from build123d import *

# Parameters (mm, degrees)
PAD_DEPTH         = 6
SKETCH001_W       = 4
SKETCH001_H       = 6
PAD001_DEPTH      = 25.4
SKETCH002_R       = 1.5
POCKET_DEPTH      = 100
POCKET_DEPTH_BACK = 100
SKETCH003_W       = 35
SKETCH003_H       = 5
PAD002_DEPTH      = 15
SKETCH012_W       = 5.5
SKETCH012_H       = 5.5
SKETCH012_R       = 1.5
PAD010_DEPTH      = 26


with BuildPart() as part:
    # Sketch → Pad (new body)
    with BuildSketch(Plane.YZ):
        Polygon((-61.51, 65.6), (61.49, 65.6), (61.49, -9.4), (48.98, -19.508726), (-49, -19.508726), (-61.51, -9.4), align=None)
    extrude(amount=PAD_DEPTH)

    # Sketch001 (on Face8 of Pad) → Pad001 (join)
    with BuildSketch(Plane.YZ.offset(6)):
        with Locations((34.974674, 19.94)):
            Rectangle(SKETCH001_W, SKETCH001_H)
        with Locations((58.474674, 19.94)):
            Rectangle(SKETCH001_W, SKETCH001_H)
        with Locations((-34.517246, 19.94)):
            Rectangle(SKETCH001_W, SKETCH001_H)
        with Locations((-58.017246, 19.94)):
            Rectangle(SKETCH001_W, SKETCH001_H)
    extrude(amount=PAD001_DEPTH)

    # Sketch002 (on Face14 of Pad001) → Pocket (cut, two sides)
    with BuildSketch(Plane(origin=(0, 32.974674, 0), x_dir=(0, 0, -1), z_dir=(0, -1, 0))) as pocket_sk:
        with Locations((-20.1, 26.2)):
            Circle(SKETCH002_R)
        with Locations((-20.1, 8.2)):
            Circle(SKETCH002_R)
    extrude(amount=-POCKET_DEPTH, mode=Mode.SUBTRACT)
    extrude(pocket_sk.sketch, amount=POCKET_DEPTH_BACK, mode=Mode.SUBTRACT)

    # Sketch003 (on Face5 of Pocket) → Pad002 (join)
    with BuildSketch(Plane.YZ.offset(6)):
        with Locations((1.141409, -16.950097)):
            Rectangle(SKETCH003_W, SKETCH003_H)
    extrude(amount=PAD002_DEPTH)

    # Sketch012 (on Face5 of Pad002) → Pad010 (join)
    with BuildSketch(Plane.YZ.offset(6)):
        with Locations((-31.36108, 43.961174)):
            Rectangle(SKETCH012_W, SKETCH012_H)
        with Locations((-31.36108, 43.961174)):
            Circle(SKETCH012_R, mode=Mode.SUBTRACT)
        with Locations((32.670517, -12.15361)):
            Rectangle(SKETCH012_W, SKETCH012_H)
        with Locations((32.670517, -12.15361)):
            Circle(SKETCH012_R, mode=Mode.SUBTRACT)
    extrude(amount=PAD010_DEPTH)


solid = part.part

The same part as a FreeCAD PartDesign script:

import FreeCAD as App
import Part
import Sketcher
Q = App.Units.Quantity

doc = App.newDocument("Part")
body = doc.addObject("PartDesign::Body", "Body")

# Sketch on YZ plane
sketch1 = doc.addObject("Sketcher::SketchObject", "Sketch")
body.addObject(sketch1)
sketch1.AttachmentSupport = (doc.YZ_Plane, [""])
sketch1.MapMode = "FlatFace"
sketch1.addGeometry(Part.LineSegment(App.Vector(61, 66, 0), App.Vector(-62, 66, 0)), False)
sketch1.addGeometry(Part.LineSegment(App.Vector(-62, 66, 0), App.Vector(-62, -9, 0)), False)
sketch1.addGeometry(Part.LineSegment(App.Vector(-62, -9, 0), App.Vector(-49, -20, 0)), False)
sketch1.addGeometry(Part.LineSegment(App.Vector(-49, -20, 0), App.Vector(49, -20, 0)), False)
sketch1.addGeometry(Part.LineSegment(App.Vector(49, -20, 0), App.Vector(61, -9, 0)), False)
sketch1.addGeometry(Part.LineSegment(App.Vector(61, -9, 0), App.Vector(61, 66, 0)), False)
sketch1.addConstraint(Sketcher.Constraint("Coincident", 0, 2, 1, 1))
sketch1.addConstraint(Sketcher.Constraint("Coincident", 1, 2, 2, 1))
sketch1.addConstraint(Sketcher.Constraint("Coincident", 2, 2, 3, 1))
sketch1.addConstraint(Sketcher.Constraint("Coincident", 3, 2, 4, 1))
sketch1.addConstraint(Sketcher.Constraint("Coincident", 4, 2, 5, 1))
sketch1.addConstraint(Sketcher.Constraint("Coincident", 5, 2, 0, 1))
sketch1.addConstraint(Sketcher.Constraint("Horizontal", 0))
sketch1.addConstraint(Sketcher.Constraint("Vertical", 1))
sketch1.addConstraint(Sketcher.Constraint("Horizontal", 3))
sketch1.addConstraint(Sketcher.Constraint("Vertical", 5))
sketch1.addConstraint(Sketcher.Constraint("Horizontal", 1, 2, 4, 2))
sketch1.addConstraint(Sketcher.Constraint("Equal", 2, 4))
sketch1.addConstraint(Sketcher.Constraint("DistanceX", 0, 2, 0, 1, Q("123 mm")))
sketch1.addConstraint(Sketcher.Constraint("DistanceY", 1, 2, 1, 1, Q("75 mm")))
sketch1.addConstraint(Sketcher.Constraint("DistanceX", 2, 2, -1, 1, Q("49 mm")))
sketch1.addConstraint(Sketcher.Constraint("DistanceX", 3, 1, 3, 2, Q("97.98 mm")))
sketch1.addConstraint(Sketcher.Constraint("DistanceY", -1, 1, 0, 2, Q("65.6 mm")))
sketch1.addConstraint(Sketcher.Constraint("Angle", 2, Q("-38.940001 deg")))
pad1 = doc.addObject("PartDesign::Pad", "Pad")
body.addObject(pad1)
pad1.Profile = sketch1
pad1.Length = 6

# Sketch on YZ plane
sketch2 = doc.addObject("Sketcher::SketchObject", "Sketch001")
body.addObject(sketch2)
sketch2.AttachmentSupport = (doc.YZ_Plane, [""])
sketch2.MapMode = "FlatFace"
sketch2.AttachmentOffset = App.Placement(App.Vector(0, 0, 6), App.Rotation())
sketch2.addGeometry(Part.LineSegment(App.Vector(33, 22.9, 0), App.Vector(33, 16.9, 0)), False)
sketch2.addGeometry(Part.LineSegment(App.Vector(33, 16.9, 0), App.Vector(37, 16.9, 0)), False)
sketch2.addGeometry(Part.LineSegment(App.Vector(37, 16.9, 0), App.Vector(37, 22.9, 0)), False)
sketch2.addGeometry(Part.LineSegment(App.Vector(37, 22.9, 0), App.Vector(33, 22.9, 0)), False)
sketch2.addGeometry(Part.LineSegment(App.Vector(56.5, 22.9, 0), App.Vector(56.5, 16.9, 0)), False)
sketch2.addGeometry(Part.LineSegment(App.Vector(56.5, 16.9, 0), App.Vector(60.5, 16.9, 0)), False)
sketch2.addGeometry(Part.LineSegment(App.Vector(60.5, 16.9, 0), App.Vector(60.5, 22.9, 0)), False)
sketch2.addGeometry(Part.LineSegment(App.Vector(60.5, 22.9, 0), App.Vector(56.5, 22.9, 0)), False)
sketch2.addGeometry(Part.LineSegment(App.Vector(-36.5, 22.9, 0), App.Vector(-36.5, 16.9, 0)), False)
sketch2.addGeometry(Part.LineSegment(App.Vector(-36.5, 16.9, 0), App.Vector(-32.5, 16.9, 0)), False)
sketch2.addGeometry(Part.LineSegment(App.Vector(-32.5, 16.9, 0), App.Vector(-32.5, 22.9, 0)), False)
sketch2.addGeometry(Part.LineSegment(App.Vector(-32.5, 22.9, 0), App.Vector(-36.5, 22.9, 0)), False)
sketch2.addGeometry(Part.LineSegment(App.Vector(-60, 22.9, 0), App.Vector(-60, 16.9, 0)), False)
sketch2.addGeometry(Part.LineSegment(App.Vector(-60, 16.9, 0), App.Vector(-56, 16.9, 0)), False)
sketch2.addGeometry(Part.LineSegment(App.Vector(-56, 16.9, 0), App.Vector(-56, 22.9, 0)), False)
sketch2.addGeometry(Part.LineSegment(App.Vector(-56, 22.9, 0), App.Vector(-60, 22.9, 0)), False)
sketch2.addConstraint(Sketcher.Constraint("Coincident", 0, 2, 1, 1))
sketch2.addConstraint(Sketcher.Constraint("Coincident", 1, 2, 2, 1))
sketch2.addConstraint(Sketcher.Constraint("Coincident", 2, 2, 3, 1))
sketch2.addConstraint(Sketcher.Constraint("Coincident", 3, 2, 0, 1))
sketch2.addConstraint(Sketcher.Constraint("Coincident", 4, 2, 5, 1))
sketch2.addConstraint(Sketcher.Constraint("Coincident", 5, 2, 6, 1))
sketch2.addConstraint(Sketcher.Constraint("Coincident", 6, 2, 7, 1))
sketch2.addConstraint(Sketcher.Constraint("Coincident", 7, 2, 4, 1))
sketch2.addConstraint(Sketcher.Constraint("Coincident", 8, 2, 9, 1))
sketch2.addConstraint(Sketcher.Constraint("Coincident", 9, 2, 10, 1))
sketch2.addConstraint(Sketcher.Constraint("Coincident", 10, 2, 11, 1))
sketch2.addConstraint(Sketcher.Constraint("Coincident", 11, 2, 8, 1))
sketch2.addConstraint(Sketcher.Constraint("Coincident", 12, 2, 13, 1))
sketch2.addConstraint(Sketcher.Constraint("Coincident", 13, 2, 14, 1))
sketch2.addConstraint(Sketcher.Constraint("Coincident", 14, 2, 15, 1))
sketch2.addConstraint(Sketcher.Constraint("Coincident", 15, 2, 12, 1))
sketch2.addConstraint(Sketcher.Constraint("Vertical", 0))
sketch2.addConstraint(Sketcher.Constraint("Horizontal", 1))
sketch2.addConstraint(Sketcher.Constraint("Vertical", 2))
sketch2.addConstraint(Sketcher.Constraint("Horizontal", 3))
sketch2.addConstraint(Sketcher.Constraint("Vertical", 4))
sketch2.addConstraint(Sketcher.Constraint("Horizontal", 5))
sketch2.addConstraint(Sketcher.Constraint("Vertical", 6))
sketch2.addConstraint(Sketcher.Constraint("Horizontal", 7))
sketch2.addConstraint(Sketcher.Constraint("Vertical", 8))
sketch2.addConstraint(Sketcher.Constraint("Horizontal", 9))
sketch2.addConstraint(Sketcher.Constraint("Vertical", 10))
sketch2.addConstraint(Sketcher.Constraint("Horizontal", 11))
sketch2.addConstraint(Sketcher.Constraint("Vertical", 12))
sketch2.addConstraint(Sketcher.Constraint("Horizontal", 13))
sketch2.addConstraint(Sketcher.Constraint("Vertical", 14))
sketch2.addConstraint(Sketcher.Constraint("Horizontal", 15))
sketch2.addConstraint(Sketcher.Constraint("Horizontal", 1, 2, 4, 2))
sketch2.addConstraint(Sketcher.Constraint("Horizontal", 3, 2, 6, 2))
sketch2.addConstraint(Sketcher.Constraint("Horizontal", 5, 2, 8, 2))
sketch2.addConstraint(Sketcher.Constraint("Horizontal", 7, 2, 10, 2))
sketch2.addConstraint(Sketcher.Constraint("Horizontal", 9, 2, 12, 2))
sketch2.addConstraint(Sketcher.Constraint("Horizontal", 11, 2, 14, 2))
sketch2.addConstraint(Sketcher.Constraint("Equal", 3, 5))
sketch2.addConstraint(Sketcher.Constraint("Equal", 7, 9))
sketch2.addConstraint(Sketcher.Constraint("Equal", 11, 13))
sketch2.addConstraint(Sketcher.Constraint("DistanceX", 1, 1, 1, 2, Q("4 mm")))
sketch2.addConstraint(Sketcher.Constraint("DistanceY", 0, 2, 0, 1, Q("6 mm")))
sketch2.addConstraint(Sketcher.Constraint("DistanceX", 1, 2, 4, 2, Q("19.5 mm")))
sketch2.addConstraint(Sketcher.Constraint("DistanceX", 12, 2, 8, 2, Q("23.5 mm")))
sketch2.addConstraint(Sketcher.Constraint("DistanceY", -1, 1, 0, 2, Q("16.94 mm")))
sketch2.addConstraint(Sketcher.Constraint("DistanceX", 8, 2, 0, 2, Q("69.49192 mm")))
sketch2.addConstraint(Sketcher.Constraint("DistanceX", -1, 1, 0, 2, Q("32.974674 mm")))
pad2 = doc.addObject("PartDesign::Pad", "Pad001")
body.addObject(pad2)
pad2.Profile = sketch2
pad2.Length = 25.4

# Sketch on XZ plane
sketch3 = doc.addObject("Sketcher::SketchObject", "Sketch002")
body.addObject(sketch3)
sketch3.AttachmentSupport = (doc.XZ_Plane, [""])
sketch3.MapMode = "FlatFace"
sketch3.AttachmentOffset = App.Placement(App.Vector(0, 0, -32.974674), App.Rotation())
sketch3.addGeometry(Part.Circle(App.Vector(26.2, 20.1, 0), App.Vector(0, 0, 1), 1.5), False)
sketch3.addGeometry(Part.Circle(App.Vector(8.2, 20.1, 0), App.Vector(0, 0, 1), 1.5), False)
sketch3.addConstraint(Sketcher.Constraint("Equal", 0, 1))
sketch3.addConstraint(Sketcher.Constraint("Horizontal", 0, 3, 1, 3))
sketch3.addConstraint(Sketcher.Constraint("Diameter", 0, Q("3 mm")))
sketch3.addConstraint(Sketcher.Constraint("DistanceX", 1, 3, 0, 3, Q("18 mm")))
sketch3.addConstraint(Sketcher.Constraint("DistanceX", -1, 1, 0, 3, Q("26.2 mm")))
sketch3.addConstraint(Sketcher.Constraint("DistanceY", -1, 1, 0, 3, Q("20.1 mm")))
pocket1 = doc.addObject("PartDesign::Pocket", "Pocket")
body.addObject(pocket1)
pocket1.Profile = sketch3
pocket1.Type = "ThroughAll"
pocket1.Midplane = True

# Sketch on YZ plane
sketch4 = doc.addObject("Sketcher::SketchObject", "Sketch003")
body.addObject(sketch4)
sketch4.AttachmentSupport = (doc.YZ_Plane, [""])
sketch4.MapMode = "FlatFace"
sketch4.AttachmentOffset = App.Placement(App.Vector(0, 0, 6), App.Rotation())
sketch4.addGeometry(Part.LineSegment(App.Vector(-16, -14, 0), App.Vector(-16, -19, 0)), False)
sketch4.addGeometry(Part.LineSegment(App.Vector(-16, -19, 0), App.Vector(19, -19, 0)), False)
sketch4.addGeometry(Part.LineSegment(App.Vector(19, -19, 0), App.Vector(19, -14, 0)), False)
sketch4.addGeometry(Part.LineSegment(App.Vector(19, -14, 0), App.Vector(-16, -14, 0)), False)
sketch4.addConstraint(Sketcher.Constraint("Coincident", 0, 2, 1, 1))
sketch4.addConstraint(Sketcher.Constraint("Coincident", 1, 2, 2, 1))
sketch4.addConstraint(Sketcher.Constraint("Coincident", 2, 2, 3, 1))
sketch4.addConstraint(Sketcher.Constraint("Coincident", 3, 2, 0, 1))
sketch4.addConstraint(Sketcher.Constraint("Vertical", 0))
sketch4.addConstraint(Sketcher.Constraint("Horizontal", 1))
sketch4.addConstraint(Sketcher.Constraint("Vertical", 2))
sketch4.addConstraint(Sketcher.Constraint("Horizontal", 3))
sketch4.addConstraint(Sketcher.Constraint("DistanceX", 1, 1, 1, 2, Q("35 mm")))
sketch4.addConstraint(Sketcher.Constraint("DistanceY", 0, 2, 0, 1, Q("5 mm")))
sketch4.addConstraint(Sketcher.Constraint("DistanceX", 0, 2, -1, 1, Q("16.358591 mm")))
sketch4.addConstraint(Sketcher.Constraint("DistanceY", 0, 2, -1, 1, Q("19.450097 mm")))
pad3 = doc.addObject("PartDesign::Pad", "Pad002")
body.addObject(pad3)
pad3.Profile = sketch4
pad3.Length = 15

# Sketch on YZ plane
sketch5 = doc.addObject("Sketcher::SketchObject", "Sketch004")
body.addObject(sketch5)
sketch5.AttachmentSupport = (doc.YZ_Plane, [""])
sketch5.MapMode = "FlatFace"
sketch5.AttachmentOffset = App.Placement(App.Vector(0, 0, 6), App.Rotation())
sketch5.addGeometry(Part.LineSegment(App.Vector(-34.1, 46.7, 0), App.Vector(-34.1, 41.2, 0)), False)
sketch5.addGeometry(Part.LineSegment(App.Vector(-34.1, 41.2, 0), App.Vector(-28.6, 41.2, 0)), False)
sketch5.addGeometry(Part.LineSegment(App.Vector(-28.6, 41.2, 0), App.Vector(-28.6, 46.7, 0)), False)
sketch5.addGeometry(Part.LineSegment(App.Vector(-28.6, 46.7, 0), App.Vector(-34.1, 46.7, 0)), False)
sketch5.addGeometry(Part.Circle(App.Vector(-31.4, 44, 0), App.Vector(0, 0, 1), 1.5), False)
sketch5.addGeometry(Part.LineSegment(App.Vector(29.9, -9.4, 0), App.Vector(29.9, -14.9, 0)), False)
sketch5.addGeometry(Part.LineSegment(App.Vector(29.9, -14.9, 0), App.Vector(35.4, -14.9, 0)), False)
sketch5.addGeometry(Part.LineSegment(App.Vector(35.4, -14.9, 0), App.Vector(35.4, -9.4, 0)), False)
sketch5.addGeometry(Part.LineSegment(App.Vector(35.4, -9.4, 0), App.Vector(29.9, -9.4, 0)), False)
sketch5.addGeometry(Part.Circle(App.Vector(32.7, -12.2, 0), App.Vector(0, 0, 1), 1.5), False)
sketch5.addConstraint(Sketcher.Constraint("Coincident", 0, 2, 1, 1))
sketch5.addConstraint(Sketcher.Constraint("Coincident", 1, 2, 2, 1))
sketch5.addConstraint(Sketcher.Constraint("Coincident", 2, 2, 3, 1))
sketch5.addConstraint(Sketcher.Constraint("Coincident", 3, 2, 0, 1))
sketch5.addConstraint(Sketcher.Constraint("Coincident", 5, 2, 6, 1))
sketch5.addConstraint(Sketcher.Constraint("Coincident", 6, 2, 7, 1))
sketch5.addConstraint(Sketcher.Constraint("Coincident", 7, 2, 8, 1))
sketch5.addConstraint(Sketcher.Constraint("Coincident", 8, 2, 5, 1))
sketch5.addConstraint(Sketcher.Constraint("Vertical", 0))
sketch5.addConstraint(Sketcher.Constraint("Horizontal", 1))
sketch5.addConstraint(Sketcher.Constraint("Vertical", 2))
sketch5.addConstraint(Sketcher.Constraint("Horizontal", 3))
sketch5.addConstraint(Sketcher.Constraint("Vertical", 5))
sketch5.addConstraint(Sketcher.Constraint("Horizontal", 6))
sketch5.addConstraint(Sketcher.Constraint("Vertical", 7))
sketch5.addConstraint(Sketcher.Constraint("Horizontal", 8))
sketch5.addConstraint(Sketcher.Constraint("Equal", 4, 9))
sketch5.addConstraint(Sketcher.Constraint("Equal", 3, 6))
sketch5.addConstraint(Sketcher.Constraint("Equal", 8, 0))
sketch5.addConstraint(Sketcher.Constraint("Equal", 2, 5))
sketch5.addConstraint(Sketcher.Constraint("Diameter", 4, Q("3 mm")))
sketch5.addConstraint(Sketcher.Constraint("DistanceX", 1, 1, 1, 2, Q("5.5 mm")))
sketch5.addConstraint(Sketcher.Constraint("DistanceX", 0, 2, 4, 3, Q("2.75 mm")))
sketch5.addConstraint(Sketcher.Constraint("DistanceY", 0, 2, 4, 3, Q("2.75 mm")))
sketch5.addConstraint(Sketcher.Constraint("DistanceX", 5, 2, 9, 3, Q("2.75 mm")))
sketch5.addConstraint(Sketcher.Constraint("DistanceY", 5, 2, 9, 3, Q("2.75 mm")))
sketch5.addConstraint(Sketcher.Constraint("DistanceX", 4, 3, -1, 1, Q("31.36108 mm")))
sketch5.addConstraint(Sketcher.Constraint("DistanceY", 9, 3, -1, 1, Q("12.15361 mm")))
sketch5.addConstraint(Sketcher.Constraint("DistanceY", -1, 1, 4, 3, Q("43.961174 mm")))
sketch5.addConstraint(Sketcher.Constraint("DistanceX", -1, 1, 9, 3, Q("32.670517 mm")))
pad4 = doc.addObject("PartDesign::Pad", "Pad003")
body.addObject(pad4)
pad4.Profile = sketch5
pad4.Length = 26

doc.recompute()
